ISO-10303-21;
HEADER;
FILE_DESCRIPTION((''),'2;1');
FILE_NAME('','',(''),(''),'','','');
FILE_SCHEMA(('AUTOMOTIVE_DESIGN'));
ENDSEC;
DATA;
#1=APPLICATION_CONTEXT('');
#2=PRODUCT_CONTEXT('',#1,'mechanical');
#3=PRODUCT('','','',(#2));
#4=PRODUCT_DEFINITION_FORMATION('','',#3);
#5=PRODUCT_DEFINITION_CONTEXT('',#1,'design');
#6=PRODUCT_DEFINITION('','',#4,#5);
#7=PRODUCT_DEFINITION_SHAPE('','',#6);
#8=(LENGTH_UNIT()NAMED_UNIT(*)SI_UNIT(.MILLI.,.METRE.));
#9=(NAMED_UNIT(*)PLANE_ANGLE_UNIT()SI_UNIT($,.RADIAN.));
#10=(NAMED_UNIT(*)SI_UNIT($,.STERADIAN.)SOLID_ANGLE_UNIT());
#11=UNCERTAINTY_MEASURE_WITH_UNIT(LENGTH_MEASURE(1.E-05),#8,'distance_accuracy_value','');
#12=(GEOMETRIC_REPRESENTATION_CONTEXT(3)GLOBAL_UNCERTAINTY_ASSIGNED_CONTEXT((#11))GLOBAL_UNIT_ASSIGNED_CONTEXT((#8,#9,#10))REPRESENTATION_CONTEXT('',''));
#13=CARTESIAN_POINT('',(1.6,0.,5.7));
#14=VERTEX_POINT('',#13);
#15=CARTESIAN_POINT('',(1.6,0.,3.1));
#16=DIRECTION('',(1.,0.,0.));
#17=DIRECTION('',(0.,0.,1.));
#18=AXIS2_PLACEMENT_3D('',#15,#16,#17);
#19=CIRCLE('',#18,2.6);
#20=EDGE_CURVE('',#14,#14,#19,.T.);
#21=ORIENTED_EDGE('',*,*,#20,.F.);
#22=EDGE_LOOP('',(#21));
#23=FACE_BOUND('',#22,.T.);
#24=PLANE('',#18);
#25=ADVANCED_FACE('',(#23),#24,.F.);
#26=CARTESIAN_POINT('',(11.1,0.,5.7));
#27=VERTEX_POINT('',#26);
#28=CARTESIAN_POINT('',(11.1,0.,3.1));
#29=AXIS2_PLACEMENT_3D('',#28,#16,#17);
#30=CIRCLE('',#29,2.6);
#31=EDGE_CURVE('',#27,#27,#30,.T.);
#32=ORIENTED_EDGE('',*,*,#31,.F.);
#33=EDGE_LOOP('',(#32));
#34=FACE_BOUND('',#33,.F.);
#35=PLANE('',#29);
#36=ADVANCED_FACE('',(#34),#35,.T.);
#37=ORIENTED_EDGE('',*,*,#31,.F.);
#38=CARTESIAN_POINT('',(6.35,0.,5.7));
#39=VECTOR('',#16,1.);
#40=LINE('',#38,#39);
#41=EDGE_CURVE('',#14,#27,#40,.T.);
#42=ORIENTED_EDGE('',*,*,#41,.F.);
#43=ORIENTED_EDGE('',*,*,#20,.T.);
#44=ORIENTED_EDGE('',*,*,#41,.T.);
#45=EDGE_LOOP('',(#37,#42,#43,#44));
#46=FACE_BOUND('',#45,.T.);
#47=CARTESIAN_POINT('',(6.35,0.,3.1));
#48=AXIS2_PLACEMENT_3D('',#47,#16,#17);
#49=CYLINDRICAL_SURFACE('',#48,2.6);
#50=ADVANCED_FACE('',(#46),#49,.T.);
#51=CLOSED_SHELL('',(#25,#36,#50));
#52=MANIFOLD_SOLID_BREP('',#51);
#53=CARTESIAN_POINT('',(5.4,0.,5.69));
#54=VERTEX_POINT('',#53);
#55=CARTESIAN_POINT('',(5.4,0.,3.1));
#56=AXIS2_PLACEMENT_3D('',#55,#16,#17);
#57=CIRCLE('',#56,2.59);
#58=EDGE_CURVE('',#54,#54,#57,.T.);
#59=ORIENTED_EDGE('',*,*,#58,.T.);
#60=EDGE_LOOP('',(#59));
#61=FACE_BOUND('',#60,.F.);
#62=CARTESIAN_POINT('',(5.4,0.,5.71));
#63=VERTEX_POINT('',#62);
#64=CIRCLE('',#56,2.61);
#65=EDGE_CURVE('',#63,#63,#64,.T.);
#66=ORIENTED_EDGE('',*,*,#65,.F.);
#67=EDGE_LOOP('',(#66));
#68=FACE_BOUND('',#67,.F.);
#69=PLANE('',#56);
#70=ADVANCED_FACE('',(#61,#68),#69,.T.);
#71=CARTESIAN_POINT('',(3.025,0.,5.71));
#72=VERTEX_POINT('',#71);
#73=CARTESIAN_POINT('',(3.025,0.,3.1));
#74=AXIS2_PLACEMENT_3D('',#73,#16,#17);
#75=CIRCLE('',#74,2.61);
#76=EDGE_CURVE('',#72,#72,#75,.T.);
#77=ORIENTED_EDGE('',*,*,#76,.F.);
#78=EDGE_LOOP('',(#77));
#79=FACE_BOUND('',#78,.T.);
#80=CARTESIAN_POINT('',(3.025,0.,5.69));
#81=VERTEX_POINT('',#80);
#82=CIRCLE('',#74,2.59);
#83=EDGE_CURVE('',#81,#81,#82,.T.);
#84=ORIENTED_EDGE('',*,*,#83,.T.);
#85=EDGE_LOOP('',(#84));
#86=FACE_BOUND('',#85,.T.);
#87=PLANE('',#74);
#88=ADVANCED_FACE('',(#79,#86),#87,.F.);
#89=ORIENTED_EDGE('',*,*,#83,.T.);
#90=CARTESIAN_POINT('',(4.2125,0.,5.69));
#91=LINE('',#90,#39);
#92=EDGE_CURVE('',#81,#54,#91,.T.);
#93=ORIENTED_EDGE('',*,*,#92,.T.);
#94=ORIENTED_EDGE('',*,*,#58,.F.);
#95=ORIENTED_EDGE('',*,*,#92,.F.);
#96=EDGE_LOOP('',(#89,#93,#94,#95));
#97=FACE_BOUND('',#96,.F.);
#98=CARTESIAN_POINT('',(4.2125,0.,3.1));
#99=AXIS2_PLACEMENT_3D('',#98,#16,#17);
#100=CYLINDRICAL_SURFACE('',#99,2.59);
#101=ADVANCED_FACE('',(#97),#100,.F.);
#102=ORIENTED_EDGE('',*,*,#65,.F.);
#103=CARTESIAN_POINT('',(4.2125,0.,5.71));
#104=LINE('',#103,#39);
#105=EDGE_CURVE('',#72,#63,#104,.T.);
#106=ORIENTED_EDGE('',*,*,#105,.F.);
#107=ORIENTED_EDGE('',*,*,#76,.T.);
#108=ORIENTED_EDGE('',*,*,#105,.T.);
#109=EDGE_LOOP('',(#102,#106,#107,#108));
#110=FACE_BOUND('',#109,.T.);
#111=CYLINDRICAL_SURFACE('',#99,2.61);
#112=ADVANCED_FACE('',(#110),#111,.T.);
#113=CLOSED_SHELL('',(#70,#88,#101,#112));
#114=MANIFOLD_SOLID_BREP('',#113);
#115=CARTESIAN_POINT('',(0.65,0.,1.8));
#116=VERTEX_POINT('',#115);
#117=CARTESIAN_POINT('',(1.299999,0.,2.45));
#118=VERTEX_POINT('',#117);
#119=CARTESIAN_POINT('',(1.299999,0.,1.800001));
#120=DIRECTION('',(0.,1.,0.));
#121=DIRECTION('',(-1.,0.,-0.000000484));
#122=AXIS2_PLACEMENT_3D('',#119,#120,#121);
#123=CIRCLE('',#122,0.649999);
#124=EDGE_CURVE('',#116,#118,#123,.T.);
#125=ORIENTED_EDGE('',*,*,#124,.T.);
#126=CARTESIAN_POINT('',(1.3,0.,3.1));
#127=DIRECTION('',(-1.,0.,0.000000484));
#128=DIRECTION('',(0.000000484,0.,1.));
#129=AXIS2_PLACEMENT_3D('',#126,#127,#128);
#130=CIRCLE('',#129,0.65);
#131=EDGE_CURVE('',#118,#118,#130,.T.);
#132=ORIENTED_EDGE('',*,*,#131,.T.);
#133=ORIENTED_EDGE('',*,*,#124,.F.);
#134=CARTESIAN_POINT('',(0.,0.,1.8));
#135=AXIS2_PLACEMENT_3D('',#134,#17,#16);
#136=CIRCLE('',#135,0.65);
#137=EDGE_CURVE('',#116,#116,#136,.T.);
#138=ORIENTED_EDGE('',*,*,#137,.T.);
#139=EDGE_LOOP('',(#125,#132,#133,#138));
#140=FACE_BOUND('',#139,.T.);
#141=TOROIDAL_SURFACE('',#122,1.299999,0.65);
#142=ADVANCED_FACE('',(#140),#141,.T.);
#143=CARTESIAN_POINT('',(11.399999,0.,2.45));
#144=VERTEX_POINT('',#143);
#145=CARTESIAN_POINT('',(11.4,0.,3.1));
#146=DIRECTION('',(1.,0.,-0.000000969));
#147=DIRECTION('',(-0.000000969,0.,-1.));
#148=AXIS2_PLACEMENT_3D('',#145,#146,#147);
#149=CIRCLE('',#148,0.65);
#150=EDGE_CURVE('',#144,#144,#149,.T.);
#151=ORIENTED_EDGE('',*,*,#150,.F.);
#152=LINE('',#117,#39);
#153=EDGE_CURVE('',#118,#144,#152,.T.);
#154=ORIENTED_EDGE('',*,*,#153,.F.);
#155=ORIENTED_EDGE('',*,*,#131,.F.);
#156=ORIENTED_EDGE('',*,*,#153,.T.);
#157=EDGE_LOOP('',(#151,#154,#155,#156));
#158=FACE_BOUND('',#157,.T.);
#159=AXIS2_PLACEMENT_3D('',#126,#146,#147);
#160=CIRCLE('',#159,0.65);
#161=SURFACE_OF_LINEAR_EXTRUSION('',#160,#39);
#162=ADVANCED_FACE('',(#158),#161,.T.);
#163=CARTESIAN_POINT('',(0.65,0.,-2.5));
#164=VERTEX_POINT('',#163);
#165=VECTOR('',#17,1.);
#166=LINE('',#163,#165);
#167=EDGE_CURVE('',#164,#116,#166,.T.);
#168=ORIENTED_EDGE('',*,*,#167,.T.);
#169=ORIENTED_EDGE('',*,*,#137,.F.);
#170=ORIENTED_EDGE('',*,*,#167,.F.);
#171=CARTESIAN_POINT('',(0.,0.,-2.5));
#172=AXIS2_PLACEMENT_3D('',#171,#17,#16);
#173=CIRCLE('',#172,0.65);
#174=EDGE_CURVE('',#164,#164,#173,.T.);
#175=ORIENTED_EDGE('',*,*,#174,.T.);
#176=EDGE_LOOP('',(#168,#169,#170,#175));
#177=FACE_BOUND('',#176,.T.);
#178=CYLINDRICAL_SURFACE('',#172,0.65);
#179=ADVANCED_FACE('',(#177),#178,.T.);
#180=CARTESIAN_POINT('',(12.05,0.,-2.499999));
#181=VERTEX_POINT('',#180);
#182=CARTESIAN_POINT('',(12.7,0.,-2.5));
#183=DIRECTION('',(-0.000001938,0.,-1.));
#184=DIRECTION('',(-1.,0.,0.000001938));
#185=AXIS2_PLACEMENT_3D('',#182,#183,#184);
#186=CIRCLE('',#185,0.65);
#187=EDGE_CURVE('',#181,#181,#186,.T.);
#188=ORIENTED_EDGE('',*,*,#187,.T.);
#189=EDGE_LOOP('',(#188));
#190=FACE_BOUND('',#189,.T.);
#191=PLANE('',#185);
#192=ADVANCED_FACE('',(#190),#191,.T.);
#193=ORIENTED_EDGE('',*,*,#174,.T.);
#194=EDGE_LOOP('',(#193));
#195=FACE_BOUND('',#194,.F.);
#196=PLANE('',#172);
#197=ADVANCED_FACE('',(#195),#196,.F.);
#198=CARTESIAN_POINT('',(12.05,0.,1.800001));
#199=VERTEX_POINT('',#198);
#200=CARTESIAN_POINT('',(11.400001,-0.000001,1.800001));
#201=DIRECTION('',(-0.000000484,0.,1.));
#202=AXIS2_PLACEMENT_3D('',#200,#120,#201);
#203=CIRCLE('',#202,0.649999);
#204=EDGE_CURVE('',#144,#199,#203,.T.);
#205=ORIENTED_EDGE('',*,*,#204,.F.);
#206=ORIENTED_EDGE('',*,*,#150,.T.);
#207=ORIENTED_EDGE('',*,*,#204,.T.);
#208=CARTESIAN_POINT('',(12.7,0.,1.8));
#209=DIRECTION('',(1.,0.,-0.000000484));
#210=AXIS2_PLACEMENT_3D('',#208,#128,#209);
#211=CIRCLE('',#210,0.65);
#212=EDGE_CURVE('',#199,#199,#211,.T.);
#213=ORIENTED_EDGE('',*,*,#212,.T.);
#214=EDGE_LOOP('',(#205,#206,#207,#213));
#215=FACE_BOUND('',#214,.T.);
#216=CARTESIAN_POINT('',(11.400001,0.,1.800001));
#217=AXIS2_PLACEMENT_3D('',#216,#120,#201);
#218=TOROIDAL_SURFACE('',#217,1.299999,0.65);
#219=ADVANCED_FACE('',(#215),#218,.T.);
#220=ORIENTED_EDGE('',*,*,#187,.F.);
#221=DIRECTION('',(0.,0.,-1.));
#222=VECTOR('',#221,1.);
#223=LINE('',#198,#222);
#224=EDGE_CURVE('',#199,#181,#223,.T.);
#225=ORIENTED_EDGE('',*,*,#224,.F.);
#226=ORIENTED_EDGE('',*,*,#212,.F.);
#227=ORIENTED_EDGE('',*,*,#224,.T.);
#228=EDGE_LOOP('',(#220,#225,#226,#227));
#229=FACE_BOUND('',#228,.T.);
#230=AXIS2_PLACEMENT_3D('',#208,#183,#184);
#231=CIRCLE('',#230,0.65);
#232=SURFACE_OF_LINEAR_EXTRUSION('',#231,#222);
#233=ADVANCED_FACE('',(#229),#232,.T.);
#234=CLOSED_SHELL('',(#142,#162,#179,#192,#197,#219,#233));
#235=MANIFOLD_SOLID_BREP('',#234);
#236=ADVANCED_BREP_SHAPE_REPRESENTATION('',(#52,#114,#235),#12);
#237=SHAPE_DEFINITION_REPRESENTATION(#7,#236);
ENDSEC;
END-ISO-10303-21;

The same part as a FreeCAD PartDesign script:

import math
import FreeCAD as App
import Part
import Sketcher
from FreeCAD import Vector
Q = App.Units.Quantity

doc = App.newDocument("Part")
body = doc.addObject("PartDesign::Body", "Body")

# Sketch on XZ plane
sketch1 = body.newObject("Sketcher::SketchObject", "Sketch")
sketch1.AttachmentSupport = (doc.getObject("XZ_Plane"), [""])
sketch1.MapMode = "FlatFace"
sketch1.addGeometry(Part.LineSegment(Vector(1.6, 5.7, 0), Vector(1.6, 3.1, 0)), False)
sketch1.addGeometry(Part.LineSegment(Vector(1.6, 3.1, 0), Vector(11.1, 3.1, 0)), False)
sketch1.addGeometry(Part.LineSegment(Vector(11.1, 3.1, 0), Vector(11.1, 5.7, 0)), False)
sketch1.addGeometry(Part.LineSegment(Vector(11.1, 5.7, 0), Vector(1.6, 5.7, 0)), False)
sketch1.addGeometry(Part.LineSegment(Vector(1.6, 3.1, 0), Vector(11.1, 3.1, 0)), True)  # axis
sketch1.addConstraint(Sketcher.Constraint("Coincident", 0, 2, 1, 1))
sketch1.addConstraint(Sketcher.Constraint("Coincident", 1, 2, 2, 1))
sketch1.addConstraint(Sketcher.Constraint("Coincident", 2, 2, 3, 1))
sketch1.addConstraint(Sketcher.Constraint("Coincident", 3, 2, 0, 1))
sketch1.addConstraint(Sketcher.Constraint("Vertical", 0))
sketch1.addConstraint(Sketcher.Constraint("Horizontal", 1))
sketch1.addConstraint(Sketcher.Constraint("Vertical", 2))
sketch1.addConstraint(Sketcher.Constraint("Horizontal", 3))
sketch1.addConstraint(Sketcher.Constraint("Horizontal", 4))
sketch1.addConstraint(Sketcher.Constraint("Coincident", 4, 1, 0, 2))
sketch1.addConstraint(Sketcher.Constraint("Vertical", 2, 2, 4, 2))
sketch1.addConstraint(Sketcher.Constraint("DistanceX", 1, 1, 1, 2, Q("9.5 mm")))
sketch1.addConstraint(Sketcher.Constraint("DistanceY", 0, 2, 0, 1, Q("2.6 mm")))
sketch1.addConstraint(Sketcher.Constraint("DistanceX", -1, 1, 0, 2, Q("1.6 mm")))
sketch1.addConstraint(Sketcher.Constraint("DistanceY", -1, 1, 0, 2, Q("3.1 mm")))
revolution = body.newObject("PartDesign::Revolution", "Revolution")
revolution.Profile = sketch1
revolution.ReferenceAxis = (sketch1, ["Axis0"])
revolution.Angle = 360
body2 = doc.addObject("PartDesign::Body", "Body001")

# Sketch on XZ plane
sketch2 = body2.newObject("Sketcher::SketchObject", "Sketch001")
sketch2.AttachmentSupport = (doc.getObject("XZ_Plane001"), [""])
sketch2.MapMode = "FlatFace"
sketch2.addGeometry(Part.LineSegment(Vector(3.025, 5.71, 0), Vector(3.025, 5.69, 0)), False)
sketch2.addGeometry(Part.LineSegment(Vector(3.025, 5.69, 0), Vector(5.4, 5.69, 0)), False)
sketch2.addGeometry(Part.LineSegment(Vector(5.4, 5.69, 0), Vector(5.4, 5.71, 0)), False)
sketch2.addGeometry(Part.LineSegment(Vector(5.4, 5.71, 0), Vector(3.025, 5.71, 0)), False)
sketch2.addGeometry(Part.LineSegment(Vector(3.025, 3.1, 0), Vector(5.4, 3.1, 0)), True)  # axis
sketch2.addConstraint(Sketcher.Constraint("Coincident", 0, 2, 1, 1))
sketch2.addConstraint(Sketcher.Constraint("Coincident", 1, 2, 2, 1))
sketch2.addConstraint(Sketcher.Constraint("Coincident", 2, 2, 3, 1))
sketch2.addConstraint(Sketcher.Constraint("Coincident", 3, 2, 0, 1))
sketch2.addConstraint(Sketcher.Constraint("Vertical", 0))
sketch2.addConstraint(Sketcher.Constraint("Horizontal", 1))
sketch2.addConstraint(Sketcher.Constraint("Vertical", 2))
sketch2.addConstraint(Sketcher.Constraint("Horizontal", 3))
sketch2.addConstraint(Sketcher.Constraint("Horizontal", 4))
sketch2.addConstraint(Sketcher.Constraint("Vertical", 3, 2, 4, 1))
sketch2.addConstraint(Sketcher.Constraint("Vertical", 2, 2, 4, 2))
sketch2.addConstraint(Sketcher.Constraint("DistanceY", 0, 2, 0, 1, Q("0.02 mm")))
sketch2.addConstraint(Sketcher.Constraint("DistanceX", -1, 1, 1, 2, Q("5.4 mm")))
sketch2.addConstraint(Sketcher.Constraint("DistanceY", -1, 1, 4, 1, Q("3.1 mm")))
sketch2.addConstraint(Sketcher.Constraint("DistanceX", 1, 1, 1, 2, Q("2.375 mm")))
sketch2.addConstraint(Sketcher.Constraint("DistanceY", -1, 1, 0, 2, Q("5.69 mm")))
revolution2 = body2.newObject("PartDesign::Revolution", "Revolution001")
revolution2.Profile = sketch2
revolution2.ReferenceAxis = (sketch2, ["Axis0"])
revolution2.Angle = 360
body3 = doc.addObject("PartDesign::Body", "Body002")

# Sketch on XY plane
sketch3 = body3.newObject("Sketcher::SketchObject", "Sketch002")
sketch3.AttachmentSupport = (doc.getObject("XY_Plane002"), [""])
sketch3.MapMode = "FlatFace"
sketch3.AttachmentOffset = App.Placement(Vector(0, 0, -2), App.Rotation())
sketch3.addGeometry(Part.Circle(Vector(0, 0, 0), Vector(0, 0, 1), 0.7), False)
sketch3.addConstraint(Sketcher.Constraint("Coincident", 0, 3, -1, 1))
sketch3.addConstraint(Sketcher.Constraint("Diameter", 0, Q("1.3 mm")))

# Sketch on XZ plane
sketch4 = body3.newObject("Sketcher::SketchObject", "Sketch003")
sketch4.AttachmentSupport = (doc.getObject("XZ_Plane002"), [""])
sketch4.MapMode = "FlatFace"
sketch4.addGeometry(Part.LineSegment(Vector(0, -2.5, 0), Vector(0, 1.8, 0)), False)
sketch4.addGeometry(Part.ArcOfCircle(Part.Circle(Vector(1.3, 1.8, 0), Vector(0, 0, 1), 1.3), math.radians(90), math.radians(180)), False)
sketch4.addGeometry(Part.LineSegment(Vector(1.3, 3.1, 0), Vector(11.4, 3.1, 0)), False)
sketch4.addGeometry(Part.ArcOfCircle(Part.Circle(Vector(11.4, 1.8, 0), Vector(0, 0, 1), 1.3), math.radians(0), math.radians(90)), False)
sketch4.addGeometry(Part.LineSegment(Vector(12.7, 1.8, 0), Vector(12.7, -2.5, 0)), False)
sketch4.addConstraint(Sketcher.Constraint("Tangent", 0, 2, 1, 2))
sketch4.addConstraint(Sketcher.Constraint("Tangent", 1, 1, 2, 1))
sketch4.addConstraint(Sketcher.Constraint("Tangent", 2, 2, 3, 2))
sketch4.addConstraint(Sketcher.Constraint("Tangent", 3, 1, 4, 1))
sketch4.addConstraint(Sketcher.Constraint("Vertical", 0))
sketch4.addConstraint(Sketcher.Constraint("Horizontal", 2))
sketch4.addConstraint(Sketcher.Constraint("Vertical", 4))
sketch4.addConstraint(Sketcher.Constraint("Equal", 1, 3))
sketch4.addConstraint(Sketcher.Constraint("PointOnObject", 0, 1, -2))
sketch4.addConstraint(Sketcher.Constraint("Horizontal", 0, 1, 4, 2))
sketch4.addConstraint(Sketcher.Constraint("Radius", 1, Q("1.299999 mm")))
sketch4.addConstraint(Sketcher.Constraint("DistanceX", 2, 1, 2, 2, Q("10.1 mm")))
sketch4.addConstraint(Sketcher.Constraint("DistanceY", 0, 1, 0, 2, Q("4.3 mm")))
sketch4.addConstraint(Sketcher.Constraint("DistanceY", -1, 1, 1, 3, Q("1.800001 mm")))
doc.recompute()

additivepipe = body3.newObject("PartDesign::AdditivePipe", "AdditivePipe")
additivepipe.Profile = sketch3
additivepipe.Spine = (sketch4, ["Edge1", "Edge2", "Edge3", "Edge4", "Edge5"])

doc.recompute()
